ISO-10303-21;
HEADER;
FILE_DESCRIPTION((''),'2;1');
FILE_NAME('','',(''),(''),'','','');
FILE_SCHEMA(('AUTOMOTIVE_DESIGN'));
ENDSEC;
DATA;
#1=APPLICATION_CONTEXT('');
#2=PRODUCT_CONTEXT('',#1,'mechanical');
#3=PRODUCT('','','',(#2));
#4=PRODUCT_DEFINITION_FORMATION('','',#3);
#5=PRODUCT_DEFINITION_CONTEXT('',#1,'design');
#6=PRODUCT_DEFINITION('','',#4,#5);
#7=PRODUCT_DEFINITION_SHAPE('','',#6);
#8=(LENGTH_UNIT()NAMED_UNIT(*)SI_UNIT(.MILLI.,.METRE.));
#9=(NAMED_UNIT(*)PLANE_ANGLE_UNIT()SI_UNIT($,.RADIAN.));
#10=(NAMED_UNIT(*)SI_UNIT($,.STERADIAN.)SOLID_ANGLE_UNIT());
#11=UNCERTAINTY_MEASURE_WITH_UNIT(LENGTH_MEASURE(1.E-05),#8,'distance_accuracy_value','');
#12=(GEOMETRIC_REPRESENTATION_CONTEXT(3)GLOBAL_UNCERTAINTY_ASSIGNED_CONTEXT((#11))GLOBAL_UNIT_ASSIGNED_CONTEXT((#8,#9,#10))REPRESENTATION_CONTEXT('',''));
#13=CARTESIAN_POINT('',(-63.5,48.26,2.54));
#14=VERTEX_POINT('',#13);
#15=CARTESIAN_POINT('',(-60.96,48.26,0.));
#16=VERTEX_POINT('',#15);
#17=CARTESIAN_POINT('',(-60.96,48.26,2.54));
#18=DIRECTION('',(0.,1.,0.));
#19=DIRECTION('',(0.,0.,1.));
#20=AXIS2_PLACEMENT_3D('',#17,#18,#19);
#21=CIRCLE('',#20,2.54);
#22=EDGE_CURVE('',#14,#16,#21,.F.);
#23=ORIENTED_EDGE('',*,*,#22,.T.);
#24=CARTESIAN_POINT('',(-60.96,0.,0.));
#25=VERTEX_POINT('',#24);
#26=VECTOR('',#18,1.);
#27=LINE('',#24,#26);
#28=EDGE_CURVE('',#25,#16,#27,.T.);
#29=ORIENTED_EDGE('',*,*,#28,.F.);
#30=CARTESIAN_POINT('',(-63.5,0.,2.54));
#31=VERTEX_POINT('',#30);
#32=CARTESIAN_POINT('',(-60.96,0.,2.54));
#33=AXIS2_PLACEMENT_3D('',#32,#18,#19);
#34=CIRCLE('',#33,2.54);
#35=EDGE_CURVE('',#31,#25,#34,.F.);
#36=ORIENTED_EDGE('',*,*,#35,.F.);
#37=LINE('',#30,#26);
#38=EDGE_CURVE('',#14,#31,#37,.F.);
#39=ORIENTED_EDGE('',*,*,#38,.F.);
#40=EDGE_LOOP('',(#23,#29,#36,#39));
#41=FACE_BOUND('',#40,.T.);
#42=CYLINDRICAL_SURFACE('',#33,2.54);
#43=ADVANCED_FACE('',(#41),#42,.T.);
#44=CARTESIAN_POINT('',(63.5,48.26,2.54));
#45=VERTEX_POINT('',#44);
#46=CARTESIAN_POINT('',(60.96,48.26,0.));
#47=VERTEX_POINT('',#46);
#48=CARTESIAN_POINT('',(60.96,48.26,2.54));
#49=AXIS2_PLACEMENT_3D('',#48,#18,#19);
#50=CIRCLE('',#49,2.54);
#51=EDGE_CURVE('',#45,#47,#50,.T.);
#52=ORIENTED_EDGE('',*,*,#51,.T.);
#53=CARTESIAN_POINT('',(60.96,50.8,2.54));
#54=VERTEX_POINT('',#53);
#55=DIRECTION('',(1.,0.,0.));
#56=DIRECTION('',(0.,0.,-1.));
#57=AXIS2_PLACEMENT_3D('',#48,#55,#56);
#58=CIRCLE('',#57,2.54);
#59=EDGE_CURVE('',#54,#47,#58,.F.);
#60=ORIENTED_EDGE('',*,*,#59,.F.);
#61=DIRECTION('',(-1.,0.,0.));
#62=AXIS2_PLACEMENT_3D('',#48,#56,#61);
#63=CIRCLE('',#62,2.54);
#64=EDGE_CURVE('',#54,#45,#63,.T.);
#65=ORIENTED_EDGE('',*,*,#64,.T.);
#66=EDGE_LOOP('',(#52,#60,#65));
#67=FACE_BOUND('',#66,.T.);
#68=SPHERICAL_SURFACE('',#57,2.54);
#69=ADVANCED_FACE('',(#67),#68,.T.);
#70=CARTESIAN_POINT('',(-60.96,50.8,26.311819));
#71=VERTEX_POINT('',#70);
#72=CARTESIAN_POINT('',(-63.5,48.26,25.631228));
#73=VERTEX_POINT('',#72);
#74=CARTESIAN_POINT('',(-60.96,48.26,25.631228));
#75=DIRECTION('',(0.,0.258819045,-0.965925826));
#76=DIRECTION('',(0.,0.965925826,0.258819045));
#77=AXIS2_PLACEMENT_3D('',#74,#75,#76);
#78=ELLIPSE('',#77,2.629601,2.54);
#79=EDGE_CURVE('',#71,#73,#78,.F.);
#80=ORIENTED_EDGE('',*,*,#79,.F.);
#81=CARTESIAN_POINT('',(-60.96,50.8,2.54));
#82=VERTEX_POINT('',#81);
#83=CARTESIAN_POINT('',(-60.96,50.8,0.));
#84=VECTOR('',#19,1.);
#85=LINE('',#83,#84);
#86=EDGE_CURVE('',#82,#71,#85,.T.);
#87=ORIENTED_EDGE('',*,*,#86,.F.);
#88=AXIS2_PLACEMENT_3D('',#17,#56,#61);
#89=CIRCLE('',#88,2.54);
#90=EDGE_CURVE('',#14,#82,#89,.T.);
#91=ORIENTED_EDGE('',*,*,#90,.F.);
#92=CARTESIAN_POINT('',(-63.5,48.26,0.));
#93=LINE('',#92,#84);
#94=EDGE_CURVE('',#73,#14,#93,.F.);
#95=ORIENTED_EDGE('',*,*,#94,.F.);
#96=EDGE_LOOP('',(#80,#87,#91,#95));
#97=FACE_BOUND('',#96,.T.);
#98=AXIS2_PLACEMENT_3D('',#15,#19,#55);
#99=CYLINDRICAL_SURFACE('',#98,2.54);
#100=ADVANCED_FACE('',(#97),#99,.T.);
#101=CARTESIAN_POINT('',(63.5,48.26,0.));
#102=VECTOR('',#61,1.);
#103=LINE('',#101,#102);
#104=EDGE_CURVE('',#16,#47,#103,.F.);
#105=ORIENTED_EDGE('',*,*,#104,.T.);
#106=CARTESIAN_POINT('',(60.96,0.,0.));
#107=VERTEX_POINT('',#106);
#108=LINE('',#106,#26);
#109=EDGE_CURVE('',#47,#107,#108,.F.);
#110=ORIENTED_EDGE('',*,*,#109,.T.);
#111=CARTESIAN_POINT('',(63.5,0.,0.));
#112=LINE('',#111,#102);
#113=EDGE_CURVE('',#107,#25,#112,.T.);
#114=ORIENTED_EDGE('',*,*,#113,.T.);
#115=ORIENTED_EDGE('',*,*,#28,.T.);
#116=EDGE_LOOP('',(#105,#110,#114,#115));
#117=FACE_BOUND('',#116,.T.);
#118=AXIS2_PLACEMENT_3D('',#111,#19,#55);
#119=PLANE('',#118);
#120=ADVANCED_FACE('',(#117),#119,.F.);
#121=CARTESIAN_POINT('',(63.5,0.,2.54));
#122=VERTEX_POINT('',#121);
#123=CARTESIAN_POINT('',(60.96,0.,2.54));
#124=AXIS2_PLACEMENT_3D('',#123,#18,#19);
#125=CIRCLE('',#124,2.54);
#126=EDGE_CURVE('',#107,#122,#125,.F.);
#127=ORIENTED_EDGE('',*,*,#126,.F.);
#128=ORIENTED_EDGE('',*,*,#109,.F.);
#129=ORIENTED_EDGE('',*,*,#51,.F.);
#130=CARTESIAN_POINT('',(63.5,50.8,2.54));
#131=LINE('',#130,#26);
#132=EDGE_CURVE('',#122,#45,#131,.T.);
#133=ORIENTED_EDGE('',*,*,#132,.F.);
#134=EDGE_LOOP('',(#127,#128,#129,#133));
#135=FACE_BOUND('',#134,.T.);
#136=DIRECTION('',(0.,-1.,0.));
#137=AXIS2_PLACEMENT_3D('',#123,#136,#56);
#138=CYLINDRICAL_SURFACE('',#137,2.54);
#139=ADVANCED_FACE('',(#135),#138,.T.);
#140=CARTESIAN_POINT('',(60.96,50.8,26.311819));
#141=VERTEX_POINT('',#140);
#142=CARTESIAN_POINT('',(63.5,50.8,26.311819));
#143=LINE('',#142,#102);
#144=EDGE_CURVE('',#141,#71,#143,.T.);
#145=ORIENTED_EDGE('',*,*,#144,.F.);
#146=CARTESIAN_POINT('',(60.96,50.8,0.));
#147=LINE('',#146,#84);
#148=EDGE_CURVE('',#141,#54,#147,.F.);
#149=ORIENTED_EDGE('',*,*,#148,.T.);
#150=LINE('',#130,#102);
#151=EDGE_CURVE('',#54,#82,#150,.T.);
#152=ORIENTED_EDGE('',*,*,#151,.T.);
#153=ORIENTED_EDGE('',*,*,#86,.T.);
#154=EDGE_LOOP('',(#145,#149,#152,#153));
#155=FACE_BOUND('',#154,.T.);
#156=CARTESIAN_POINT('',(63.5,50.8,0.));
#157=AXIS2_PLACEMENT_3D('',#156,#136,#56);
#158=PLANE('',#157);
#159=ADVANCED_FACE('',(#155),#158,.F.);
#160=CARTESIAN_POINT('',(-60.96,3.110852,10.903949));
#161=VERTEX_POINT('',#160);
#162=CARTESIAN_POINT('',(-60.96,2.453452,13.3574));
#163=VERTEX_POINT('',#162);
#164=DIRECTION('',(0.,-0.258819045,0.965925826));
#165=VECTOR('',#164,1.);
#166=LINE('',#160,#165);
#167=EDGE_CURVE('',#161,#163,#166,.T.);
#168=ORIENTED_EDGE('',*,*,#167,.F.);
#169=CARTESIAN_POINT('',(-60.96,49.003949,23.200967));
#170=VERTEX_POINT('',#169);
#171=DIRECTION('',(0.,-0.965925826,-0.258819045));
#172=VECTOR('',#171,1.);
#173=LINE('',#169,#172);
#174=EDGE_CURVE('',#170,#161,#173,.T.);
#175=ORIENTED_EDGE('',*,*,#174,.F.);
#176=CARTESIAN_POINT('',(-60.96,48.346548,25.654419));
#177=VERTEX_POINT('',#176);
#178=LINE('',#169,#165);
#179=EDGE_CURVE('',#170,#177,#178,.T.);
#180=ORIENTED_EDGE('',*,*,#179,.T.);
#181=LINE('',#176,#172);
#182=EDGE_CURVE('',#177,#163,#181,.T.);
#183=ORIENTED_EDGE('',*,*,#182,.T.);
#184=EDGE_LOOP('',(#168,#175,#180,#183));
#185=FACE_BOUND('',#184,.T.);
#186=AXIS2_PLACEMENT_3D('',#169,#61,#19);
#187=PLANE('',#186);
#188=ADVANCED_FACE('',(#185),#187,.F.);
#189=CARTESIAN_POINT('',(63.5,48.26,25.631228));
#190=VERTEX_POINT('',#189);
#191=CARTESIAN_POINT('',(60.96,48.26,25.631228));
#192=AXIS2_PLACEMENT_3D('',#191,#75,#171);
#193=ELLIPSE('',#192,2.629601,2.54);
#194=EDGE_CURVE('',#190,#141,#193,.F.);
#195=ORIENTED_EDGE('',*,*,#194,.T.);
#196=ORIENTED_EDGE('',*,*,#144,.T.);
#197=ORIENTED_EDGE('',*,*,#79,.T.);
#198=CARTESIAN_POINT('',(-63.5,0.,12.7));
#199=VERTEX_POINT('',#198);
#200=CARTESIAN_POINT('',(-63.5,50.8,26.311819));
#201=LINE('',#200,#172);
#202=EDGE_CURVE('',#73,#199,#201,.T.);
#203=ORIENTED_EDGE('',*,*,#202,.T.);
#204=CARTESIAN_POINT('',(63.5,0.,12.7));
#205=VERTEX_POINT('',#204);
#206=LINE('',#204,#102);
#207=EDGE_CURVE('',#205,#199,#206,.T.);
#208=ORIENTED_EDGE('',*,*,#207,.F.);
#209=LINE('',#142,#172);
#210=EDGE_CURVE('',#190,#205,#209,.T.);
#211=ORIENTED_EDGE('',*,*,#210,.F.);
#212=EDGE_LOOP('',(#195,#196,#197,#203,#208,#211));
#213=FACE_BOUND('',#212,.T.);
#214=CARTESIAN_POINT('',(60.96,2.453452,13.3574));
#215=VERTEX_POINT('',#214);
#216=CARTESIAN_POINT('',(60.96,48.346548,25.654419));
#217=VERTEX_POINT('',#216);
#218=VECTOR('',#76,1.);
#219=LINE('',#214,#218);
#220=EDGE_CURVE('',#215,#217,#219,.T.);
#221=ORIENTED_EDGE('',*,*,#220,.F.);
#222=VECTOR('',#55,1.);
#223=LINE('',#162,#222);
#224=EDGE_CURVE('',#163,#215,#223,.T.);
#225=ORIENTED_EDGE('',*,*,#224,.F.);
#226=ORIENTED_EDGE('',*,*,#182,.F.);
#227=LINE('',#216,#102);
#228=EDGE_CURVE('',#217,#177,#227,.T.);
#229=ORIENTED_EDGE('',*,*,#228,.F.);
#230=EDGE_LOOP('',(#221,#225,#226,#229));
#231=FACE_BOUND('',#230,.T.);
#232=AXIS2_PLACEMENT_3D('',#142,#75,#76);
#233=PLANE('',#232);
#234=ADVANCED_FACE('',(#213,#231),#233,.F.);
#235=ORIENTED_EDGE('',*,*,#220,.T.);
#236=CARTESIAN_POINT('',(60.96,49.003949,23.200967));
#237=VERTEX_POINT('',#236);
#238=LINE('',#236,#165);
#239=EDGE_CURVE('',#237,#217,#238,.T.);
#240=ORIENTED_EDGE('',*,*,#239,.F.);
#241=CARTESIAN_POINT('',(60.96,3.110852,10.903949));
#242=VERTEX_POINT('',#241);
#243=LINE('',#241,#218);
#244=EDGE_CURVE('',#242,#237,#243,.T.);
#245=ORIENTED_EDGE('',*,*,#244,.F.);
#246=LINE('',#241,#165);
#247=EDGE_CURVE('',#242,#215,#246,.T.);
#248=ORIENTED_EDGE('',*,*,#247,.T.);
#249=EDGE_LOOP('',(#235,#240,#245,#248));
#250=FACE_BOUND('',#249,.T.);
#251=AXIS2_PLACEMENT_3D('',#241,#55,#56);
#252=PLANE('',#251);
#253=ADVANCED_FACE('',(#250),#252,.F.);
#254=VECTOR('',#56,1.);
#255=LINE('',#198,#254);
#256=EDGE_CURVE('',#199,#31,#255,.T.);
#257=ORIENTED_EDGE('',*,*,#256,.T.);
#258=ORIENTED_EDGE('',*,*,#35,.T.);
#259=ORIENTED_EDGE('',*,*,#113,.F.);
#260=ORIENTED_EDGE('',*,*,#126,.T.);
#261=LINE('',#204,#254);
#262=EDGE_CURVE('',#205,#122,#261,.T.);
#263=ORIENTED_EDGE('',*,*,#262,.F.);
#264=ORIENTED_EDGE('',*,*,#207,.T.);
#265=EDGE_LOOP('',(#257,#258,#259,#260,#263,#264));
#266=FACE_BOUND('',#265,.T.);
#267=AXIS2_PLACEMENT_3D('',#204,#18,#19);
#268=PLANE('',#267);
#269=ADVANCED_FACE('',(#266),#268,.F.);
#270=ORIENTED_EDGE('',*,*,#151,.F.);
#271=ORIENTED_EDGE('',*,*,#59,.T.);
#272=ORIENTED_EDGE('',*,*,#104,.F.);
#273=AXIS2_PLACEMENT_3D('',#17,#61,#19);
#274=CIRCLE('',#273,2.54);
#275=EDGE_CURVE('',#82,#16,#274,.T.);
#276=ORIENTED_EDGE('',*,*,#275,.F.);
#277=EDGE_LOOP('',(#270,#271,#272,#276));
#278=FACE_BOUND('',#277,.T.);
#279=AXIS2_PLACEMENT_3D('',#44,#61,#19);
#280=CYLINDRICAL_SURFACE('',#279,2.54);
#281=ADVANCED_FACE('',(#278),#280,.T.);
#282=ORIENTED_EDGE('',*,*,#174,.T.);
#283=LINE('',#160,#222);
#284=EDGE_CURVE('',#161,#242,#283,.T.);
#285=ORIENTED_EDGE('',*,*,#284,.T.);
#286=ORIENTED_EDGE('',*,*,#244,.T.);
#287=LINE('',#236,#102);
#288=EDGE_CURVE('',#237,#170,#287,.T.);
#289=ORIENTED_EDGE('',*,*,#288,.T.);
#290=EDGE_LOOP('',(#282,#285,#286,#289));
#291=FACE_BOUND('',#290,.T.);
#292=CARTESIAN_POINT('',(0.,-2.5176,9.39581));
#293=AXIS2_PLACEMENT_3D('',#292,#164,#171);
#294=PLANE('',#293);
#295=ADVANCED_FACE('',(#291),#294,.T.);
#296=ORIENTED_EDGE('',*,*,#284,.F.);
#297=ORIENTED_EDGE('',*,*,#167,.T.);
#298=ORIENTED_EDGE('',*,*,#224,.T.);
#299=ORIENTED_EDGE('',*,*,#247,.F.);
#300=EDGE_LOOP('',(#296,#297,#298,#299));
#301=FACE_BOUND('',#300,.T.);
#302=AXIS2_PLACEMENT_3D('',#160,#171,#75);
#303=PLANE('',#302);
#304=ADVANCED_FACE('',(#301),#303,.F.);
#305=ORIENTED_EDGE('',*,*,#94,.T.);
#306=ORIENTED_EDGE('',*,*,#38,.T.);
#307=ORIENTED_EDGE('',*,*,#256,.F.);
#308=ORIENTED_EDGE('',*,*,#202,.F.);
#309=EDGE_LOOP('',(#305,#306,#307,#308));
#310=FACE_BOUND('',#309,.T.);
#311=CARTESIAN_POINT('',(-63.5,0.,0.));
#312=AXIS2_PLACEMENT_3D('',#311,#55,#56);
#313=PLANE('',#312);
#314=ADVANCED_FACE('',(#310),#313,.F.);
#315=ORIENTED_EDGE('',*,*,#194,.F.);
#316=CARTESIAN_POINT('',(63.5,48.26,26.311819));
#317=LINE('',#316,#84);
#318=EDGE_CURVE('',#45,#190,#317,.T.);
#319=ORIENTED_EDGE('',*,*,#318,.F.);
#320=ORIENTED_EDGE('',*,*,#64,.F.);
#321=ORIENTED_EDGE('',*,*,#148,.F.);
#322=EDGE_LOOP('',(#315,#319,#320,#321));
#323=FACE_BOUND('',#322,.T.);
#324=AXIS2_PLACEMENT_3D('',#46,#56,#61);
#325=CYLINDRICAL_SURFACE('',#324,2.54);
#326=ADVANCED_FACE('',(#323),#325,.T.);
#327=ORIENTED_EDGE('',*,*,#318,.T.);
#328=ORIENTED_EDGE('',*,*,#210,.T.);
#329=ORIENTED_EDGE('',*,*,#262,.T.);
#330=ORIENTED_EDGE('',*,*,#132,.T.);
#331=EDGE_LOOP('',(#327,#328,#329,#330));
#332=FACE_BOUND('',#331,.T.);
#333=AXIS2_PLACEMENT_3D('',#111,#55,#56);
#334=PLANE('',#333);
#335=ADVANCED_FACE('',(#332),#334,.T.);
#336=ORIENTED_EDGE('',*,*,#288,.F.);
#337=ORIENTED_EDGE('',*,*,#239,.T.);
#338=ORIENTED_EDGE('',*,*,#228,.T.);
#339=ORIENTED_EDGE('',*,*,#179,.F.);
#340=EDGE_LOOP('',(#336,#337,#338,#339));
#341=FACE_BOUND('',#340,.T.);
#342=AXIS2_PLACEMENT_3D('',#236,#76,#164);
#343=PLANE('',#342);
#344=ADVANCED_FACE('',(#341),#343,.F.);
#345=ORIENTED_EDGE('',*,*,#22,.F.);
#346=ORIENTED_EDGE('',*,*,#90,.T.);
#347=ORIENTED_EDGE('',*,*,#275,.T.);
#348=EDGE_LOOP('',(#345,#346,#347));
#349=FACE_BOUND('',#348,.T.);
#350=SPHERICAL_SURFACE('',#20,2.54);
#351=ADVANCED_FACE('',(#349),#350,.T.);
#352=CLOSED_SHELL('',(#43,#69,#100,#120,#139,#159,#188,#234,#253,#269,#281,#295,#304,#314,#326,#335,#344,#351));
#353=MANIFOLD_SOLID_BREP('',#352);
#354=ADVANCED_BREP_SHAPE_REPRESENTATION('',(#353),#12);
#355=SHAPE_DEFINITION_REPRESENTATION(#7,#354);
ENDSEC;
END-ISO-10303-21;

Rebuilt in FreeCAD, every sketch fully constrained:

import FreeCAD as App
import Part
import Sketcher

V = App.Vector
Q = App.Units.Quantity


def edges_at(feature, points):
    """Names of the edges that pass closest to the given points."""
    edges = feature.Shape.Edges
    near = lambda p: min(range(len(edges)), key=lambda i: edges[i].distToShape(Part.Vertex(*p))[0])
    return sorted({f"Edge{near(p) + 1}" for p in points})

doc = App.newDocument("Part")
body = doc.addObject("PartDesign::Body", "Body")

sketch1 = body.newObject("Sketcher::SketchObject", "Sketch")
sketch1.AttachmentSupport = (doc.getObject("YZ_Plane"), [""])
sketch1.MapMode = "FlatFace"
sketch1.addGeometry([
    Part.LineSegment(V(0, 0, 0), V(51, 0, 0)),
    Part.LineSegment(V(51, 0, 0), V(51, 26, 0)),
    Part.LineSegment(V(51, 26, 0), V(0, 13, 0)),
    Part.LineSegment(V(0, 13, 0), V(0, 0, 0)),
], False)
sketch1.addConstraint([
    Sketcher.Constraint("Coincident", 0, 2, 1, 1),
    Sketcher.Constraint("Coincident", 1, 2, 2, 1),
    Sketcher.Constraint("Coincident", 2, 2, 3, 1),
    Sketcher.Constraint("Coincident", 3, 2, 0, 1),
    Sketcher.Constraint("Horizontal", 0),
    Sketcher.Constraint("Vertical", 1),
    Sketcher.Constraint("Vertical", 3),
    Sketcher.Constraint("Coincident", 3, 2, -1, 1),
    Sketcher.Constraint("DistanceX", 0, 1, 0, 2, Q("2 in")),
    Sketcher.Constraint("DistanceY", 3, 2, 3, 1, Q("0.5 in")),
    Sketcher.Constraint("Angle", 2, Q("-165 deg")),
])
pad1 = body.newObject("PartDesign::Pad", "Pad")
pad1.Profile = sketch1
pad1.Length = Q("5 in")
pad1.Midplane = True

sketch2 = body.newObject("Sketcher::SketchObject", "Sketch001")
sketch2.Placement = App.Placement(V(0, -3.175, 11.849261), App.Rotation(V(1, 0, 0), V(0, 0.965925826, 0.258819045), V(0, -0.258819045, 0.965925826), "ZXY"))
sketch2.addGeometry([
    Part.LineSegment(V(-61, 53, 0), V(-61, 6, 0)),
    Part.LineSegment(V(-61, 6, 0), V(61, 6, 0)),
    Part.LineSegment(V(61, 6, 0), V(61, 53, 0)),
    Part.LineSegment(V(61, 53, 0), V(-61, 53, 0)),
], False)
sketch2.addConstraint([
    Sketcher.Constraint("Coincident", 0, 2, 1, 1),
    Sketcher.Constraint("Coincident", 1, 2, 2, 1),
    Sketcher.Constraint("Coincident", 2, 2, 3, 1),
    Sketcher.Constraint("Coincident", 3, 2, 0, 1),
    Sketcher.Constraint("Vertical", 0),
    Sketcher.Constraint("Horizontal", 1),
    Sketcher.Constraint("Vertical", 2),
    Sketcher.Constraint("Horizontal", 3),
    Sketcher.Constraint("DistanceX", 1, 1, 1, 2, Q("4.8 in")),
    Sketcher.Constraint("DistanceX", 0, 2, -1, 1, Q("2.4 in")),
    Sketcher.Constraint("DistanceY", 0, 2, 0, 1, 47.51203),
    Sketcher.Constraint("DistanceY", -1, 1, 0, 2, 5.827002),
])
pocket1 = body.newObject("PartDesign::Pocket", "Pocket")
pocket1.Profile = sketch2
pocket1.Length = Q("0.1 in")
doc.recompute()

fillet = body.newObject("PartDesign::Fillet", "Fillet")
fillet.Base = (pocket1, edges_at(pocket1, [
    (63.5, 50.8, 13.156),
    (-63.5, 50.8, 13.156),
    (-63.5, 25.4, 0),
    (0, 50.8, 0),
    (63.5, 25.4, 0),
]))
fillet.Radius = Q("0.1 in")

doc.recompute()
